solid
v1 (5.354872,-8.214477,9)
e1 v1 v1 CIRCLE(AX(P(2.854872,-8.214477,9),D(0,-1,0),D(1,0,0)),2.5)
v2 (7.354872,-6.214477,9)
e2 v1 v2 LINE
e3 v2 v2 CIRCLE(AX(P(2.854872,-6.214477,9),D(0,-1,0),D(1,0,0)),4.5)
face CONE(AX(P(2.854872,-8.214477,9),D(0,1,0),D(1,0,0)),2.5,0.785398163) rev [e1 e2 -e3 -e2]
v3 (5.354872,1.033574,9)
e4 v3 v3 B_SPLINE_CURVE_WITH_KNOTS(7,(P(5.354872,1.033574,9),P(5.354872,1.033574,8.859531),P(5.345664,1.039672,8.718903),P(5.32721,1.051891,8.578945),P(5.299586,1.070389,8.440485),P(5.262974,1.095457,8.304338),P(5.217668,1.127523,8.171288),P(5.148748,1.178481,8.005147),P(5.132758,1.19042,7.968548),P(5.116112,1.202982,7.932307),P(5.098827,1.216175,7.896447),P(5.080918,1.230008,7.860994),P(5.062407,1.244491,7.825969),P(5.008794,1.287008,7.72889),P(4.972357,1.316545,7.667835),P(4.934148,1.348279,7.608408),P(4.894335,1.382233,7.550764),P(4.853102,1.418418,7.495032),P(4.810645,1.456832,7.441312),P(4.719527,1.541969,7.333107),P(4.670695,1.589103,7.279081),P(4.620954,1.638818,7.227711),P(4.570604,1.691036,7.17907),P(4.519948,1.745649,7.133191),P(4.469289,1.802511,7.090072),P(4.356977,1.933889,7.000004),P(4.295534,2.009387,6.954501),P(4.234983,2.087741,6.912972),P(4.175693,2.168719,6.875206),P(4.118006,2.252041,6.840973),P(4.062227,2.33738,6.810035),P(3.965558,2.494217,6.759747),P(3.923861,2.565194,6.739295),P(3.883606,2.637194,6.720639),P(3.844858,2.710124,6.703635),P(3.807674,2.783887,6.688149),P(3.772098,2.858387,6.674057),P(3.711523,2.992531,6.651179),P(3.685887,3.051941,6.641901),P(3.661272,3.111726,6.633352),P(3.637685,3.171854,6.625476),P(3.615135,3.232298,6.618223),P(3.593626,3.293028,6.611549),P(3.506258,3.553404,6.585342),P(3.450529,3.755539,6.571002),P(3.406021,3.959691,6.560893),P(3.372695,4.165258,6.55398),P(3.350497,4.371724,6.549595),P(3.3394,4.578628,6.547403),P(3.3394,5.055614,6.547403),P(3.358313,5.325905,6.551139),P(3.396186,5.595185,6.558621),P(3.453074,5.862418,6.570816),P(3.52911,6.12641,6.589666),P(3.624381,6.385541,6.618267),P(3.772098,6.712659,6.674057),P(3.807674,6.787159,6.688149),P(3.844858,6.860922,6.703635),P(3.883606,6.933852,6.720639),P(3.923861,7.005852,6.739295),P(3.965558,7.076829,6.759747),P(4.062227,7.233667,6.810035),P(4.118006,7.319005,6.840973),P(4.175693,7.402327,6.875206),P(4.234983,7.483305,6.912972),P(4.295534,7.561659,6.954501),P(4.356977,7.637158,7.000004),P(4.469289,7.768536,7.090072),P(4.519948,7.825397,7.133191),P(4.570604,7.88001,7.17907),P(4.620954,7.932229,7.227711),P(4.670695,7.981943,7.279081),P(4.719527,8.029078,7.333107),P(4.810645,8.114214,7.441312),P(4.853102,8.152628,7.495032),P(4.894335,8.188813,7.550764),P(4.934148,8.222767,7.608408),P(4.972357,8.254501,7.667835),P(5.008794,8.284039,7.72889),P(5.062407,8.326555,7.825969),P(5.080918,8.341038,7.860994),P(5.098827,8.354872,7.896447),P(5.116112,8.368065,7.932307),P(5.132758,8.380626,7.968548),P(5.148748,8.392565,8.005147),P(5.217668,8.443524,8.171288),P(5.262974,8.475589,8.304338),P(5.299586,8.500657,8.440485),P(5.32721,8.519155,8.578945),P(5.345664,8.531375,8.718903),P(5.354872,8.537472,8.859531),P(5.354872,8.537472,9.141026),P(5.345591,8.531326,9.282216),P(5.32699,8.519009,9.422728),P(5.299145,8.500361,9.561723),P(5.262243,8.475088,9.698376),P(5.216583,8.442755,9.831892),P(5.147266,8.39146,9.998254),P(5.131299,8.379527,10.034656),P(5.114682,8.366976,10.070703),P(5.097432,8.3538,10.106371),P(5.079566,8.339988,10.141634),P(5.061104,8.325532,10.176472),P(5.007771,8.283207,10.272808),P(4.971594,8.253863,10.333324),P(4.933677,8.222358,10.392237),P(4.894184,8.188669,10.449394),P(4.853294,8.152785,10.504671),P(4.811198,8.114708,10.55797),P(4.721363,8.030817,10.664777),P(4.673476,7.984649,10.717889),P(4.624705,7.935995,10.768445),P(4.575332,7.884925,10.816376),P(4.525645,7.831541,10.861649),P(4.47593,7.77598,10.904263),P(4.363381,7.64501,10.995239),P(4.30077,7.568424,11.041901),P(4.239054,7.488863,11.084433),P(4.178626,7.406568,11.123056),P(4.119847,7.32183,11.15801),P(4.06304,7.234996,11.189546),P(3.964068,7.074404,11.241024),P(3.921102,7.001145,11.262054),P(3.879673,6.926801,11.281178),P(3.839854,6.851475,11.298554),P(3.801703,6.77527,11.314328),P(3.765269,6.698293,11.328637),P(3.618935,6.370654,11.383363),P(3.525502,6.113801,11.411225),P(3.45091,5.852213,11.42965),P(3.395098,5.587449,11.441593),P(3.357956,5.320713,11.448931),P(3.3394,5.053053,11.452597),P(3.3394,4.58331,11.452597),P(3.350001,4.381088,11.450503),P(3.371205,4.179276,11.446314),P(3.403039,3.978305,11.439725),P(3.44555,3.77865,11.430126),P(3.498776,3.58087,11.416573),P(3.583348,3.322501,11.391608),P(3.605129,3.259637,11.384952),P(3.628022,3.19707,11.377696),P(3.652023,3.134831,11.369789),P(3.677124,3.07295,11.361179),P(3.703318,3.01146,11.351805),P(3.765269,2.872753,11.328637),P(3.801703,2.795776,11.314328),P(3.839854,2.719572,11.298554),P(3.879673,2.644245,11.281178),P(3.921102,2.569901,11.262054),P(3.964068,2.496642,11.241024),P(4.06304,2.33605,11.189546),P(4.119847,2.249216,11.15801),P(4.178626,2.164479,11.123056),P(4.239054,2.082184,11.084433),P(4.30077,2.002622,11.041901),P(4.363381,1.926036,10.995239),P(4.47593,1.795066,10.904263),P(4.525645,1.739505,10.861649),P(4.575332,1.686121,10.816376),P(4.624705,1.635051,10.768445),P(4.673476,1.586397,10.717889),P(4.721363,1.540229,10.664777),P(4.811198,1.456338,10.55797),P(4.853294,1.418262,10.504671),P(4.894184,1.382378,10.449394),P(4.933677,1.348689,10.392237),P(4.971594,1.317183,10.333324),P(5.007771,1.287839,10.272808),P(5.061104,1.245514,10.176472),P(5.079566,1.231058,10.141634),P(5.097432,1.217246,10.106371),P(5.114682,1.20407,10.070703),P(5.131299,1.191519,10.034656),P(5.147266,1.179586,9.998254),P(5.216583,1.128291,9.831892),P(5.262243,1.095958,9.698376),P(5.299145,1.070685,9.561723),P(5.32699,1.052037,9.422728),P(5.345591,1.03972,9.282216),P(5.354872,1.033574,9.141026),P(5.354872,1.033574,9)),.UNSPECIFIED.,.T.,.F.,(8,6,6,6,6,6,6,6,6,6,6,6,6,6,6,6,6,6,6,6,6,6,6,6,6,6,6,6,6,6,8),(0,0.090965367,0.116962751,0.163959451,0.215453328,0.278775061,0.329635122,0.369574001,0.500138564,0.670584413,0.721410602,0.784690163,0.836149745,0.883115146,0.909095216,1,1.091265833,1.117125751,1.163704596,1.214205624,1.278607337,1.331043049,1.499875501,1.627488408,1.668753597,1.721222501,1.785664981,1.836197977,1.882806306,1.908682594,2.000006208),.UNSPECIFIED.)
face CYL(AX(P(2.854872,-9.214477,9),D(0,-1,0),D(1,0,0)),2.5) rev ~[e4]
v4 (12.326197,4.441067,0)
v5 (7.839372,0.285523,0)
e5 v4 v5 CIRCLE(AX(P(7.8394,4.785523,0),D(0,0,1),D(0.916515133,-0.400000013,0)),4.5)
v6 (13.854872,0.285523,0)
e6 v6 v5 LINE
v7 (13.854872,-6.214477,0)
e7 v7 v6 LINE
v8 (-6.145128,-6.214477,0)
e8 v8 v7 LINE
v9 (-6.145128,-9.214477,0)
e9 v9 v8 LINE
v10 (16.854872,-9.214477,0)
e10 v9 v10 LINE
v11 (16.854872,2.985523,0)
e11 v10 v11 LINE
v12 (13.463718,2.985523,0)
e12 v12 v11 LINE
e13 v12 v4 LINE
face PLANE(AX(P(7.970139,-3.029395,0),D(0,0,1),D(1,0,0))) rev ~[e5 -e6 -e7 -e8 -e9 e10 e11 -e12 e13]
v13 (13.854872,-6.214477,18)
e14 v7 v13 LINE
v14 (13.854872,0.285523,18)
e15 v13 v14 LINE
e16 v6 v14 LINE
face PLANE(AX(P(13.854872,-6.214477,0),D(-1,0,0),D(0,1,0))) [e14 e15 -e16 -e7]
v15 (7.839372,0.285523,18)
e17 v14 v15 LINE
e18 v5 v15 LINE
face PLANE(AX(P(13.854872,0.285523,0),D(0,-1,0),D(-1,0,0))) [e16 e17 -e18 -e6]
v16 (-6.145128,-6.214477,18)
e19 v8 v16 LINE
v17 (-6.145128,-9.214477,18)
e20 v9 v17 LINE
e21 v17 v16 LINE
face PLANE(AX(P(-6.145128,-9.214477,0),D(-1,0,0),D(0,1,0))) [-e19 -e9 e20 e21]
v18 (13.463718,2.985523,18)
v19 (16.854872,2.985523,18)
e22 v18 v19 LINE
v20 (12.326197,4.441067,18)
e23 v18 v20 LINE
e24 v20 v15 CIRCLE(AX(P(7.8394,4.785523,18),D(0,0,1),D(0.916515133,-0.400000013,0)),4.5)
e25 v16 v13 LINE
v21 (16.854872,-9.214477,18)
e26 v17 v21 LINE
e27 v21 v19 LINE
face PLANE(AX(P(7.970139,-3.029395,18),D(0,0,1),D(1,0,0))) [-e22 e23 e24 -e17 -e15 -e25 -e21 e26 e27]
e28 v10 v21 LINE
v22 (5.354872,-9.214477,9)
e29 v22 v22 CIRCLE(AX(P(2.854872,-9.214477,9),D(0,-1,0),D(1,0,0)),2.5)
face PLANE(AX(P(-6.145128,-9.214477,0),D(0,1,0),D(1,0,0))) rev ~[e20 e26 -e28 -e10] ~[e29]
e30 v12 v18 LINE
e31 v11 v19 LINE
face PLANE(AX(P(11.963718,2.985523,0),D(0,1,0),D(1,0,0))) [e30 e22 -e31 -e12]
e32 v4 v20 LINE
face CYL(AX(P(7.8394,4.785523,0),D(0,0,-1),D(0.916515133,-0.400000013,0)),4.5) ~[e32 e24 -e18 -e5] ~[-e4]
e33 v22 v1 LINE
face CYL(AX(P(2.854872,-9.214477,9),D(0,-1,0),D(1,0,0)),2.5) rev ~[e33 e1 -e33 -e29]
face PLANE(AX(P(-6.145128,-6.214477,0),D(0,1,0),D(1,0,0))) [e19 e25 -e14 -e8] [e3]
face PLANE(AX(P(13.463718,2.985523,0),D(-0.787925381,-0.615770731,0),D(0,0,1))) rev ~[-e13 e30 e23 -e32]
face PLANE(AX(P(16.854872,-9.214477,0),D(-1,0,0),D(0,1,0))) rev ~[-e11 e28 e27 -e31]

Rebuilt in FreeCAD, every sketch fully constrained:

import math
import FreeCAD as App
import Part
import Sketcher
from FreeCAD import Vector


def edges_at(feature, points):
    """Names of the edges that pass closest to the given points."""
    edges = feature.Shape.Edges
    near = lambda p: min(range(len(edges)), key=lambda i: edges[i].distToShape(Part.Vertex(*p))[0])
    return sorted({f"Edge{near(p) + 1}" for p in points})

doc = App.newDocument("Part")
body = doc.addObject("PartDesign::Body", "Body")

# Sketch on XY plane
sketch1 = body.newObject("Sketcher::SketchObject", "Sketch")
sketch1.AttachmentSupport = (doc.getObject("XY_Plane"), [""])
sketch1.MapMode = "FlatFace"
sketch1.addGeometry(Part.LineSegment(Vector(-6.1, -9.2, 0), Vector(16.9, -9.2, 0)), False)
sketch1.addGeometry(Part.LineSegment(Vector(16.9, -9.2, 0), Vector(16.9, 3, 0)), False)
sketch1.addGeometry(Part.LineSegment(Vector(16.9, 3, 0), Vector(12, 3, 0)), False)
sketch1.addGeometry(Part.ArcOfCircle(Part.Circle(Vector(7.8, 4.8, 0), Vector(0, 0, 1), 4.5), math.radians(-24), math.radians(270)), False)
sketch1.addGeometry(Part.LineSegment(Vector(7.8, 0.3, 0), Vector(13.9, 0.3, 0)), False)
sketch1.addGeometry(Part.LineSegment(Vector(13.9, 0.3, 0), Vector(13.9, -6.2, 0)), False)
sketch1.addGeometry(Part.LineSegment(Vector(13.9, -6.2, 0), Vector(-6.1, -6.2, 0)), False)
sketch1.addGeometry(Part.LineSegment(Vector(-6.1, -6.2, 0), Vector(-6.1, -9.2, 0)), False)
sketch1.addConstraint(Sketcher.Constraint("Coincident", 0, 2, 1, 1))
sketch1.addConstraint(Sketcher.Constraint("Coincident", 1, 2, 2, 1))
sketch1.addConstraint(Sketcher.Constraint("Coincident", 2, 2, 3, 1))
sketch1.addConstraint(Sketcher.Constraint("Coincident", 3, 2, 4, 1))
sketch1.addConstraint(Sketcher.Constraint("Coincident", 4, 2, 5, 1))
sketch1.addConstraint(Sketcher.Constraint("Coincident", 5, 2, 6, 1))
sketch1.addConstraint(Sketcher.Constraint("Coincident", 6, 2, 7, 1))
sketch1.addConstraint(Sketcher.Constraint("Coincident", 7, 2, 0, 1))
sketch1.addConstraint(Sketcher.Constraint("Horizontal", 0))
sketch1.addConstraint(Sketcher.Constraint("Vertical", 1))
sketch1.addConstraint(Sketcher.Constraint("Horizontal", 2))
sketch1.addConstraint(Sketcher.Constraint("Horizontal", 4))
sketch1.addConstraint(Sketcher.Constraint("Vertical", 5))
sketch1.addConstraint(Sketcher.Constraint("Horizontal", 6))
sketch1.addConstraint(Sketcher.Constraint("Vertical", 7))
sketch1.addConstraint(Sketcher.Constraint("Radius", 3, 4.5))
sketch1.addConstraint(Sketcher.Constraint("DistanceX", 0, 1, 0, 2, 23.0))
sketch1.addConstraint(Sketcher.Constraint("DistanceX", 6, 2, 6, 1, 20.0))
sketch1.addConstraint(Sketcher.Constraint("DistanceY", 7, 2, 7, 1, 3.0))
sketch1.addConstraint(Sketcher.Constraint("DistanceY", 1, 1, 1, 2, 12.2))
sketch1.addConstraint(Sketcher.Constraint("DistanceY", 5, 2, 5, 1, 6.5))
sketch1.addConstraint(Sketcher.Constraint("DistanceX", 4, 1, 4, 2, 6.0155))
sketch1.addConstraint(Sketcher.Constraint("DistanceX", -1, 1, 3, 3, 7.8394))
sketch1.addConstraint(Sketcher.Constraint("DistanceX", 2, 2, 2, 1, 4.891154))
sketch1.addConstraint(Sketcher.Constraint("DistanceY", -1, 1, 3, 3, 4.785523))
pad1 = body.newObject("PartDesign::Pad", "Pad")
pad1.Profile = sketch1
pad1.Length = 18

# Sketch on XZ plane
sketch2 = body.newObject("Sketcher::SketchObject", "Sketch001")
sketch2.AttachmentSupport = (doc.getObject("XZ_Plane"), [""])
sketch2.MapMode = "FlatFace"
sketch2.AttachmentOffset = App.Placement(Vector(0, 0, 9.214477), App.Rotation())
sketch2.addGeometry(Part.Circle(Vector(2.9, 9, 0), Vector(0, 0, 1), 2.5), False)
sketch2.addConstraint(Sketcher.Constraint("Diameter", 0, 5.0))
sketch2.addConstraint(Sketcher.Constraint("DistanceY", -1, 1, 0, 3, 9.0))
sketch2.addConstraint(Sketcher.Constraint("DistanceX", -1, 1, 0, 3, 2.854872))
pocket1 = body.newObject("PartDesign::Pocket", "Pocket")
pocket1.Profile = sketch2
pocket1.Type = "ThroughAll"
doc.recompute()

chamfer = body.newObject("PartDesign::Chamfer", "Chamfer")
chamfer.Base = (pocket1, edges_at(pocket1, [(0.355, -6.214, 9)]))
chamfer.Size = 2
doc.recompute()

chamfer2 = body.newObject("PartDesign::Chamfer", "Chamfer001")
chamfer2.Base = (chamfer, edges_at(chamfer, [(11.964, 2.986, 9)]))
chamfer2.Size = 1.5

doc.recompute()
